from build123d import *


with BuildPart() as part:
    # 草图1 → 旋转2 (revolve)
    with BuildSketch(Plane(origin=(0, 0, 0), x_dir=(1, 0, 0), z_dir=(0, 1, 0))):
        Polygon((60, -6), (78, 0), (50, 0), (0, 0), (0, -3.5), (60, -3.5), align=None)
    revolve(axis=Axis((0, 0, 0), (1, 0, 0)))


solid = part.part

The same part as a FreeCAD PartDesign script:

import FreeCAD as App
import Part
import Sketcher


def add_polygon(sketch, points):
    """Adds a closed chain of lines whose ends are joined by coincident constraints."""
    first, n = sketch.GeometryCount, len(points)
    for a, b in zip(points, points[1:] + points[:1]):
        sketch.addGeometry(Part.LineSegment(App.Vector(*a, 0), App.Vector(*b, 0)), False)
    for i in range(n):
        sketch.addConstraint(Sketcher.Constraint("Coincident", first + i, 2, first + (i + 1) % n, 1))

doc = App.newDocument("Part")
body = doc.addObject("PartDesign::Body", "Body")

sketch1 = body.newObject("Sketcher::SketchObject", "Sketch")
sketch1.AttachmentSupport = (doc.getObject("XZ_Plane"), [""])
sketch1.MapMode = "FlatFace"
add_polygon(sketch1, [(60, 6), (78, 0), (0, 0), (0, 3.5), (60, 3.5)])
sketch1.addConstraint([
    Sketcher.Constraint("Horizontal", 1),
    Sketcher.Constraint("Vertical", 2),
    Sketcher.Constraint("Horizontal", 3),
    Sketcher.Constraint("Vertical", 4),
    Sketcher.Constraint("Coincident", 1, 2, -1, 1),
    Sketcher.Constraint("DistanceX", 1, 2, 1, 1, 78.0),
    Sketcher.Constraint("DistanceX", 3, 1, 3, 2, 60.0),
    Sketcher.Constraint("DistanceY", 2, 1, 2, 2, 3.5),
    Sketcher.Constraint("DistanceY", 4, 1, 4, 2, 2.5),
])
revolution = body.newObject("PartDesign::Revolution", "Revolution")
revolution.Profile = sketch1
revolution.ReferenceAxis = (sketch1, ["H_Axis"])
revolution.Angle = 360

doc.recompute()
